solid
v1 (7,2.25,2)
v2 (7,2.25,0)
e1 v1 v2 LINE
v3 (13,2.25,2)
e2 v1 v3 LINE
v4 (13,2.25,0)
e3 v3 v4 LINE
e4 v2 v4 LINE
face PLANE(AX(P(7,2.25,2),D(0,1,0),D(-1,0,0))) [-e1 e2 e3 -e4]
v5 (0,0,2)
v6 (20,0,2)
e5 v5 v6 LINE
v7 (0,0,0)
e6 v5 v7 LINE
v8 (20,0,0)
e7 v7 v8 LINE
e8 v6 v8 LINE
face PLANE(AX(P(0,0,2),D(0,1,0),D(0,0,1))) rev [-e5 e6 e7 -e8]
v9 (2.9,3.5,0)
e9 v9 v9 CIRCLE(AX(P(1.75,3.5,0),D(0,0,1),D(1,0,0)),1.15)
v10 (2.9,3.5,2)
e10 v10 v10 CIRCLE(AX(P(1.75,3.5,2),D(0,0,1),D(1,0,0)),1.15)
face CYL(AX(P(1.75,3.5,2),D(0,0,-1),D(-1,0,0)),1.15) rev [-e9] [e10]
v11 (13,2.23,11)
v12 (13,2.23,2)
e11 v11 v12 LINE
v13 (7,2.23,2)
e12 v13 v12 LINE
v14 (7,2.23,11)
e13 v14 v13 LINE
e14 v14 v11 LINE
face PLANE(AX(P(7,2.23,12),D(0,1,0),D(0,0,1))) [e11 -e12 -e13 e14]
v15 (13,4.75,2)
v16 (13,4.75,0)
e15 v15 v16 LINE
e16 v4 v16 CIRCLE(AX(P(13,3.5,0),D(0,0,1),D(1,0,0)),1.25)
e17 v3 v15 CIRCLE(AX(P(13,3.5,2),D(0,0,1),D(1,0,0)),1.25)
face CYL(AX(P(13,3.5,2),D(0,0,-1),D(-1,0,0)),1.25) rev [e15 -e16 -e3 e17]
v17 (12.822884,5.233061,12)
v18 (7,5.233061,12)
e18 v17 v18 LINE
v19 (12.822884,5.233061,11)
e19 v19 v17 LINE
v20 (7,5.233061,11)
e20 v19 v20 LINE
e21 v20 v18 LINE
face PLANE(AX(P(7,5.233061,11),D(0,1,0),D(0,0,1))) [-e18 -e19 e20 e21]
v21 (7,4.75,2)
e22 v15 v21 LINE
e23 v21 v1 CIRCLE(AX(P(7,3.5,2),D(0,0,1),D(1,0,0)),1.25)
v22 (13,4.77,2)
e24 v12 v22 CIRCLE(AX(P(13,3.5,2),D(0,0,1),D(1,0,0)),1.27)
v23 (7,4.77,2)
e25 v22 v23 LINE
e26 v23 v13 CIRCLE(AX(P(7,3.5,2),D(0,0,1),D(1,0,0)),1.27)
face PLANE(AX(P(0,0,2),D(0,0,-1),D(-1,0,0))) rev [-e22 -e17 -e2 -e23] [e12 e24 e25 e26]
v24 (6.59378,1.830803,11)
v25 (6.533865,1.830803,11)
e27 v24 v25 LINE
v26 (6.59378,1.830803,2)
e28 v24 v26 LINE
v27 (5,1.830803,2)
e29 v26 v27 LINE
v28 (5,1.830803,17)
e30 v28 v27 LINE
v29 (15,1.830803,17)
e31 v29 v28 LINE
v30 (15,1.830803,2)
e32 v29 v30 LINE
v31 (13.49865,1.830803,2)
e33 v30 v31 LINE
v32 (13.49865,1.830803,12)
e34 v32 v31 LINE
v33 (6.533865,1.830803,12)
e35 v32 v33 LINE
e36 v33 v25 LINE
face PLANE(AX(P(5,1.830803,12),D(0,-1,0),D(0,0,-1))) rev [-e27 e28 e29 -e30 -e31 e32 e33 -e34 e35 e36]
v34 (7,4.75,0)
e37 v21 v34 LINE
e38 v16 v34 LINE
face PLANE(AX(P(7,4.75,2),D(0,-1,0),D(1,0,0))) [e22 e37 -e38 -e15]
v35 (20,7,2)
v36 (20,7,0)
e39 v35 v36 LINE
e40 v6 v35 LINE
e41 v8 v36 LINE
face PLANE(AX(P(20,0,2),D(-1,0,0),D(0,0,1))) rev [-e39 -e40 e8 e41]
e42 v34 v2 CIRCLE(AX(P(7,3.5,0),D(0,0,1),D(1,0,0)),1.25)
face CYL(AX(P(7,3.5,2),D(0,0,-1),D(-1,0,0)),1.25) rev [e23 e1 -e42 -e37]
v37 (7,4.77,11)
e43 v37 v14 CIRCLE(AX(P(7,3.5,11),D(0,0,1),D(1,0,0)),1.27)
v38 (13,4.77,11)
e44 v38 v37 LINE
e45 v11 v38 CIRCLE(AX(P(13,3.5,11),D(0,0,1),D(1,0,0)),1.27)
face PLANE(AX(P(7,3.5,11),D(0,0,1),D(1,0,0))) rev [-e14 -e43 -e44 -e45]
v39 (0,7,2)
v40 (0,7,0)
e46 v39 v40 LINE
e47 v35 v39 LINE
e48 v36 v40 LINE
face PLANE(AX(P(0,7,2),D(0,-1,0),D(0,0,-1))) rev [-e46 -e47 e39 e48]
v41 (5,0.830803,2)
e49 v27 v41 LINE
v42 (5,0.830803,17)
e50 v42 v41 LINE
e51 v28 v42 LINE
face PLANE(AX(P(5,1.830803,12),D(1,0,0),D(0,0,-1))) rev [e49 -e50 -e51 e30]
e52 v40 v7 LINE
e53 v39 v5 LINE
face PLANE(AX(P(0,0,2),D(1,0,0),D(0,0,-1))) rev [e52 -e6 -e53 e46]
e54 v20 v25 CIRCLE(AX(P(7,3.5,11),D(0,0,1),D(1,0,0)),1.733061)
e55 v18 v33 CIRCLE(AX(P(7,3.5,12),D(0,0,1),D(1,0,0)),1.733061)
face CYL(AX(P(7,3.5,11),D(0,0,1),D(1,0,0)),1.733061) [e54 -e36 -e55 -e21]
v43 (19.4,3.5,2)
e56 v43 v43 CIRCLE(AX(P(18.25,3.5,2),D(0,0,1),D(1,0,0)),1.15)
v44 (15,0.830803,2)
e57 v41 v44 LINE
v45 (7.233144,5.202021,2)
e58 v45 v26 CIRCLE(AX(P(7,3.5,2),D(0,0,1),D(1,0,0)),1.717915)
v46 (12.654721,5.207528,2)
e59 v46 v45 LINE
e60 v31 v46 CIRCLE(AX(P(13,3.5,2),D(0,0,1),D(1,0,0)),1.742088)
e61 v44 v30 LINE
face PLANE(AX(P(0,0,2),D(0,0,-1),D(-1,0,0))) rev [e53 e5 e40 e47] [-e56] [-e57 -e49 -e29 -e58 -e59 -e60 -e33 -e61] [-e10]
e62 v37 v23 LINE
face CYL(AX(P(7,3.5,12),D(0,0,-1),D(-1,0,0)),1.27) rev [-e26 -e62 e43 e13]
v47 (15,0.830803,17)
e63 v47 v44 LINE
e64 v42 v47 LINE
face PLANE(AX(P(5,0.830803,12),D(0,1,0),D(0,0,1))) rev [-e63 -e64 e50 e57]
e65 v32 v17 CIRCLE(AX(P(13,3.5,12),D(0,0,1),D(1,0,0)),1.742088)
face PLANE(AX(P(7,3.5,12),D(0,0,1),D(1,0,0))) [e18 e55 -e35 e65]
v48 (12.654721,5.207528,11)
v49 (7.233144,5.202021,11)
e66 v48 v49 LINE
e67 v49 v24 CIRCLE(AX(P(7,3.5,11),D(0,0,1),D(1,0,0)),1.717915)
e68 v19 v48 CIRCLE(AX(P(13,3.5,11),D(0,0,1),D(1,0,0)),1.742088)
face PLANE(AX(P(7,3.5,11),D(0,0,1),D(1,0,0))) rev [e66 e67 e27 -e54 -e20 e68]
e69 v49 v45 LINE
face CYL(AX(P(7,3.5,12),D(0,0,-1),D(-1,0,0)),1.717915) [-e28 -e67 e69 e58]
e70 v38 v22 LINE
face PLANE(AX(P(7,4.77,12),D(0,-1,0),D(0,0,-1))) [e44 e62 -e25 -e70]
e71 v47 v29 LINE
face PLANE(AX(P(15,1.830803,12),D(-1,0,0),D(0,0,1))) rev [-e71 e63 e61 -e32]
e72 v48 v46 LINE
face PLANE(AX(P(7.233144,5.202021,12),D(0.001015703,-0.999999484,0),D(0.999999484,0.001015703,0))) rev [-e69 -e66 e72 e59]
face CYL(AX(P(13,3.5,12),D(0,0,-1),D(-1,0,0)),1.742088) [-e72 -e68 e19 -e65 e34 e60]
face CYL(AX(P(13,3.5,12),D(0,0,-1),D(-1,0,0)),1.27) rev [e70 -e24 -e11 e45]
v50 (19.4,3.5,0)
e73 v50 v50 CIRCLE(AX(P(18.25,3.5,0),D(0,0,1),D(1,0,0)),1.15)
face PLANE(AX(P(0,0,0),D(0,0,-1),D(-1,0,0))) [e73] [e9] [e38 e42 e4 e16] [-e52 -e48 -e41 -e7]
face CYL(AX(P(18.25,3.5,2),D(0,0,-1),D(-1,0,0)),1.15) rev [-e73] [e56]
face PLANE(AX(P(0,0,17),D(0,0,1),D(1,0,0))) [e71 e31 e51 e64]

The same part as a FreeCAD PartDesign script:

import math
import FreeCAD as App
import Part
import Sketcher

doc = App.newDocument("Part")
body = doc.addObject("PartDesign::Body", "Body")

# Sketch on XY plane
sketch1 = body.newObject("Sketcher::SketchObject", "Sketch")
sketch1.AttachmentSupport = (doc.getObject("XY_Plane"), [""])
sketch1.MapMode = "FlatFace"
sketch1.addGeometry([
    Part.LineSegment(App.Vector(0, 7, 0), App.Vector(0, 0, 0)),  # 0
    Part.LineSegment(App.Vector(0, 0, 0), App.Vector(20, 0, 0)),  # 1
    Part.LineSegment(App.Vector(20, 0, 0), App.Vector(20, 7, 0)),  # 2
    Part.LineSegment(App.Vector(20, 7, 0), App.Vector(0, 7, 0)),  # 3
    Part.Circle(App.Vector(1.75, 3.5, 0), App.Vector(0, 0, 1), 1.15),  # 4
    Part.ArcOfCircle(Part.Circle(App.Vector(7, 3.5, 0), App.Vector(0, 0, 1), 1.25), math.radians(90), math.radians(270)),  # 5
    Part.LineSegment(App.Vector(7, 4.75, 0), App.Vector(13, 4.75, 0)),  # 6
    Part.ArcOfCircle(Part.Circle(App.Vector(13, 3.5, 0), App.Vector(0, 0, 1), 1.25), math.radians(-90), math.radians(90)),  # 7
    Part.LineSegment(App.Vector(13, 2.25, 0), App.Vector(7, 2.25, 0)),  # 8
    Part.Circle(App.Vector(18.25, 3.5, 0), App.Vector(0, 0, 1), 1.15),  # 9
], False)
sketch1.addConstraint([
    Sketcher.Constraint("Coincident", 0, 2, 1, 1),
    Sketcher.Constraint("Coincident", 1, 2, 2, 1),
    Sketcher.Constraint("Coincident", 2, 2, 3, 1),
    Sketcher.Constraint("Coincident", 3, 2, 0, 1),
    Sketcher.Constraint("Tangent", 5, 1, 6, 1),
    Sketcher.Constraint("Tangent", 6, 2, 7, 2),
    Sketcher.Constraint("Tangent", 7, 1, 8, 1),
    Sketcher.Constraint("Tangent", 8, 2, 5, 2),
    Sketcher.Constraint("Vertical", 0),
    Sketcher.Constraint("Horizontal", 1),
    Sketcher.Constraint("Vertical", 2),
    Sketcher.Constraint("Horizontal", 3),
    Sketcher.Constraint("Horizontal", 6),
    Sketcher.Constraint("Horizontal", 8),
    Sketcher.Constraint("Coincident", 0, 2, -1, 1),
    Sketcher.Constraint("Equal", 4, 9),
    Sketcher.Constraint("Horizontal", 4, 3, 5, 3),
    Sketcher.Constraint("Horizontal", 7, 3, 9, 3),
    Sketcher.Constraint("Diameter", 4, 2.3),
    Sketcher.Constraint("DistanceX", 1, 1, 1, 2, 20.0),
    Sketcher.Constraint("DistanceX", 6, 1, 6, 2, 6.0),
    Sketcher.Constraint("DistanceY", 0, 2, 0, 1, 7.0),
    Sketcher.Constraint("Radius", 5, 1.25),
    Sketcher.Constraint("DistanceX", -1, 1, 5, 3, 7.0),
    Sketcher.Constraint("DistanceY", -1, 1, 4, 3, 3.5),
    Sketcher.Constraint("DistanceX", 4, 3, 9, 3, 16.5),
    Sketcher.Constraint("DistanceX", -1, 1, 4, 3, 1.75),
])
pad1 = body.newObject("PartDesign::Pad", "Pad")
pad1.Profile = sketch1
pad1.Length = 2

# Sketch on XY plane
sketch2 = body.newObject("Sketcher::SketchObject", "Sketch001")
sketch2.AttachmentSupport = (doc.getObject("XY_Plane"), [""])
sketch2.MapMode = "FlatFace"
sketch2.AttachmentOffset = App.Placement(App.Vector(0, 0, 2), App.Rotation())
sketch2.addGeometry([
    Part.LineSegment(App.Vector(12.654721, 5.207528, 0), App.Vector(7.233144, 5.202021, 0)),  # 0
    Part.ArcOfCircle(Part.Circle(App.Vector(7, 3.5, 0), App.Vector(0, 0, 1), 1.717915), math.radians(82.200117), math.radians(256.322225)),  # 1
    Part.LineSegment(App.Vector(6.59378, 1.830803, 0), App.Vector(5, 1.830803, 0)),  # 2
    Part.LineSegment(App.Vector(5, 1.830803, 0), App.Vector(5, 0.830803, 0)),  # 3
    Part.LineSegment(App.Vector(5, 0.830803, 0), App.Vector(15, 0.830803, 0)),  # 4
    Part.LineSegment(App.Vector(15, 0.830803, 0), App.Vector(15, 1.830803, 0)),  # 5
    Part.LineSegment(App.Vector(15, 1.830803, 0), App.Vector(13.49865, 1.830803, 0)),  # 6
    Part.ArcOfCircle(Part.Circle(App.Vector(13, 3.5, 0), App.Vector(0, 0, 1), 1.742088), math.radians(-73.367197), math.radians(101.431627)),  # 7
    Part.LineSegment(App.Vector(7, 4.77, 0), App.Vector(13, 4.77, 0)),  # 8
    Part.ArcOfCircle(Part.Circle(App.Vector(13, 3.5, 0), App.Vector(0, 0, 1), 1.27), math.radians(-90), math.radians(90)),  # 9
    Part.LineSegment(App.Vector(13, 2.23, 0), App.Vector(7, 2.23, 0)),  # 10
    Part.ArcOfCircle(Part.Circle(App.Vector(7, 3.5, 0), App.Vector(0, 0, 1), 1.27), math.radians(90), math.radians(270)),  # 11
], False)
sketch2.addConstraint([
    Sketcher.Constraint("Coincident", 0, 2, 1, 1),
    Sketcher.Constraint("Coincident", 1, 2, 2, 1),
    Sketcher.Constraint("Coincident", 2, 2, 3, 1),
    Sketcher.Constraint("Coincident", 3, 2, 4, 1),
    Sketcher.Constraint("Coincident", 4, 2, 5, 1),
    Sketcher.Constraint("Coincident", 5, 2, 6, 1),
    Sketcher.Constraint("Coincident", 6, 2, 7, 1),
    Sketcher.Constraint("Coincident", 7, 2, 0, 1),
    Sketcher.Constraint("Tangent", 8, 2, 9, 2),
    Sketcher.Constraint("Tangent", 9, 1, 10, 1),
    Sketcher.Constraint("Tangent", 10, 2, 11, 2),
    Sketcher.Constraint("Tangent", 11, 1, 8, 1),
    Sketcher.Constraint("Horizontal", 2),
    Sketcher.Constraint("Vertical", 3),
    Sketcher.Constraint("Horizontal", 4),
    Sketcher.Constraint("Vertical", 5),
    Sketcher.Constraint("Horizontal", 6),
    Sketcher.Constraint("Horizontal", 8),
    Sketcher.Constraint("Horizontal", 10),
    Sketcher.Constraint("Coincident", 9, 3, 7, 3),
    Sketcher.Constraint("Coincident", 11, 3, 1, 3),
    Sketcher.Constraint("Horizontal", 2, 2, 5, 2),
    Sketcher.Constraint("DistanceX", 4, 1, 4, 2, 10.0),
    Sketcher.Constraint("DistanceX", 8, 1, 8, 2, 6.0),
    Sketcher.Constraint("DistanceY", 3, 2, 3, 1, 1.0),
    Sketcher.Constraint("Radius", 9, 1.27),
    Sketcher.Constraint("DistanceX", -1, 1, 1, 3, 7.0),
    Sketcher.Constraint("DistanceX", -1, 1, 2, 2, 5.0),
    Sketcher.Constraint("DistanceY", -1, 1, 1, 3, 3.5),
    Sketcher.Constraint("Radius", 1, 1.717915),
    Sketcher.Constraint("Radius", 7, 1.742088),
    Sketcher.Constraint("DistanceX", 2, 2, 2, 1, 1.59378),
    Sketcher.Constraint("Distance", 0, 5.421579),
    Sketcher.Constraint("DistanceY", -1, 1, 0, 2, 5.202021),
])
pad2 = body.newObject("PartDesign::Pad", "Pad001")
pad2.Profile = sketch2
pad2.Length = 10

# Sketch on XY plane
sketch3 = body.newObject("Sketcher::SketchObject", "Sketch002")
sketch3.AttachmentSupport = (doc.getObject("XY_Plane"), [""])
sketch3.MapMode = "FlatFace"
sketch3.AttachmentOffset = App.Placement(App.Vector(0, 0, 12), App.Rotation())
sketch3.addGeometry([
    Part.LineSegment(App.Vector(13, 5.233061, 0), App.Vector(7, 5.233061, 0)),
    Part.ArcOfCircle(Part.Circle(App.Vector(7, 3.5, 0), App.Vector(0, 0, 1), 1.733061), math.radians(90), math.radians(270)),
    Part.LineSegment(App.Vector(7, 1.766939, 0), App.Vector(13, 1.766939, 0)),
    Part.ArcOfCircle(Part.Circle(App.Vector(13, 3.5, 0), App.Vector(0, 0, 1), 1.733061), math.radians(-90), math.radians(90)),
], False)
sketch3.addConstraint([
    Sketcher.Constraint("Tangent", 0, 2, 1, 1),
    Sketcher.Constraint("Tangent", 1, 2, 2, 1),
    Sketcher.Constraint("Tangent", 2, 2, 3, 1),
    Sketcher.Constraint("Tangent", 3, 2, 0, 1),
    Sketcher.Constraint("Horizontal", 0),
    Sketcher.Constraint("Horizontal", 2),
    Sketcher.Constraint("DistanceX", 0, 2, 0, 1, 6.0),
    Sketcher.Constraint("DistanceX", -1, 1, 1, 3, 7.0),
    Sketcher.Constraint("DistanceY", -1, 1, 1, 3, 3.5),
    Sketcher.Constraint("Radius", 1, 1.733061),
])
pad3 = body.newObject("PartDesign::Pad", "Pad002")
pad3.Profile = sketch3
pad3.Length = 1
pad3.Reversed = True

# Sketch on XY plane
sketch4 = body.newObject("Sketcher::SketchObject", "Sketch003")
sketch4.AttachmentSupport = (doc.getObject("XY_Plane"), [""])
sketch4.MapMode = "FlatFace"
sketch4.AttachmentOffset = App.Placement(App.Vector(0, 0, 12), App.Rotation())
sketch4.addGeometry([
    Part.LineSegment(App.Vector(5, 1.830803, 0), App.Vector(5, 0.830803, 0)),
    Part.LineSegment(App.Vector(5, 0.830803, 0), App.Vector(15, 0.830803, 0)),
    Part.LineSegment(App.Vector(15, 0.830803, 0), App.Vector(15, 1.830803, 0)),
    Part.LineSegment(App.Vector(15, 1.830803, 0), App.Vector(5, 1.830803, 0)),
], False)
sketch4.addConstraint([
    Sketcher.Constraint("Coincident", 0, 2, 1, 1),
    Sketcher.Constraint("Coincident", 1, 2, 2, 1),
    Sketcher.Constraint("Coincident", 2, 2, 3, 1),
    Sketcher.Constraint("Coincident", 3, 2, 0, 1),
    Sketcher.Constraint("Vertical", 0),
    Sketcher.Constraint("Horizontal", 1),
    Sketcher.Constraint("Vertical", 2),
    Sketcher.Constraint("Horizontal", 3),
    Sketcher.Constraint("DistanceX", 1, 1, 1, 2, 10.0),
    Sketcher.Constraint("DistanceY", 0, 2, 0, 1, 1.0),
    Sketcher.Constraint("DistanceX", -1, 1, 0, 2, 5.0),
    Sketcher.Constraint("DistanceY", -1, 1, 0, 2, 0.830803),
])
pad4 = body.newObject("PartDesign::Pad", "Pad003")
pad4.Profile = sketch4
pad4.Length = 5

doc.recompute()
